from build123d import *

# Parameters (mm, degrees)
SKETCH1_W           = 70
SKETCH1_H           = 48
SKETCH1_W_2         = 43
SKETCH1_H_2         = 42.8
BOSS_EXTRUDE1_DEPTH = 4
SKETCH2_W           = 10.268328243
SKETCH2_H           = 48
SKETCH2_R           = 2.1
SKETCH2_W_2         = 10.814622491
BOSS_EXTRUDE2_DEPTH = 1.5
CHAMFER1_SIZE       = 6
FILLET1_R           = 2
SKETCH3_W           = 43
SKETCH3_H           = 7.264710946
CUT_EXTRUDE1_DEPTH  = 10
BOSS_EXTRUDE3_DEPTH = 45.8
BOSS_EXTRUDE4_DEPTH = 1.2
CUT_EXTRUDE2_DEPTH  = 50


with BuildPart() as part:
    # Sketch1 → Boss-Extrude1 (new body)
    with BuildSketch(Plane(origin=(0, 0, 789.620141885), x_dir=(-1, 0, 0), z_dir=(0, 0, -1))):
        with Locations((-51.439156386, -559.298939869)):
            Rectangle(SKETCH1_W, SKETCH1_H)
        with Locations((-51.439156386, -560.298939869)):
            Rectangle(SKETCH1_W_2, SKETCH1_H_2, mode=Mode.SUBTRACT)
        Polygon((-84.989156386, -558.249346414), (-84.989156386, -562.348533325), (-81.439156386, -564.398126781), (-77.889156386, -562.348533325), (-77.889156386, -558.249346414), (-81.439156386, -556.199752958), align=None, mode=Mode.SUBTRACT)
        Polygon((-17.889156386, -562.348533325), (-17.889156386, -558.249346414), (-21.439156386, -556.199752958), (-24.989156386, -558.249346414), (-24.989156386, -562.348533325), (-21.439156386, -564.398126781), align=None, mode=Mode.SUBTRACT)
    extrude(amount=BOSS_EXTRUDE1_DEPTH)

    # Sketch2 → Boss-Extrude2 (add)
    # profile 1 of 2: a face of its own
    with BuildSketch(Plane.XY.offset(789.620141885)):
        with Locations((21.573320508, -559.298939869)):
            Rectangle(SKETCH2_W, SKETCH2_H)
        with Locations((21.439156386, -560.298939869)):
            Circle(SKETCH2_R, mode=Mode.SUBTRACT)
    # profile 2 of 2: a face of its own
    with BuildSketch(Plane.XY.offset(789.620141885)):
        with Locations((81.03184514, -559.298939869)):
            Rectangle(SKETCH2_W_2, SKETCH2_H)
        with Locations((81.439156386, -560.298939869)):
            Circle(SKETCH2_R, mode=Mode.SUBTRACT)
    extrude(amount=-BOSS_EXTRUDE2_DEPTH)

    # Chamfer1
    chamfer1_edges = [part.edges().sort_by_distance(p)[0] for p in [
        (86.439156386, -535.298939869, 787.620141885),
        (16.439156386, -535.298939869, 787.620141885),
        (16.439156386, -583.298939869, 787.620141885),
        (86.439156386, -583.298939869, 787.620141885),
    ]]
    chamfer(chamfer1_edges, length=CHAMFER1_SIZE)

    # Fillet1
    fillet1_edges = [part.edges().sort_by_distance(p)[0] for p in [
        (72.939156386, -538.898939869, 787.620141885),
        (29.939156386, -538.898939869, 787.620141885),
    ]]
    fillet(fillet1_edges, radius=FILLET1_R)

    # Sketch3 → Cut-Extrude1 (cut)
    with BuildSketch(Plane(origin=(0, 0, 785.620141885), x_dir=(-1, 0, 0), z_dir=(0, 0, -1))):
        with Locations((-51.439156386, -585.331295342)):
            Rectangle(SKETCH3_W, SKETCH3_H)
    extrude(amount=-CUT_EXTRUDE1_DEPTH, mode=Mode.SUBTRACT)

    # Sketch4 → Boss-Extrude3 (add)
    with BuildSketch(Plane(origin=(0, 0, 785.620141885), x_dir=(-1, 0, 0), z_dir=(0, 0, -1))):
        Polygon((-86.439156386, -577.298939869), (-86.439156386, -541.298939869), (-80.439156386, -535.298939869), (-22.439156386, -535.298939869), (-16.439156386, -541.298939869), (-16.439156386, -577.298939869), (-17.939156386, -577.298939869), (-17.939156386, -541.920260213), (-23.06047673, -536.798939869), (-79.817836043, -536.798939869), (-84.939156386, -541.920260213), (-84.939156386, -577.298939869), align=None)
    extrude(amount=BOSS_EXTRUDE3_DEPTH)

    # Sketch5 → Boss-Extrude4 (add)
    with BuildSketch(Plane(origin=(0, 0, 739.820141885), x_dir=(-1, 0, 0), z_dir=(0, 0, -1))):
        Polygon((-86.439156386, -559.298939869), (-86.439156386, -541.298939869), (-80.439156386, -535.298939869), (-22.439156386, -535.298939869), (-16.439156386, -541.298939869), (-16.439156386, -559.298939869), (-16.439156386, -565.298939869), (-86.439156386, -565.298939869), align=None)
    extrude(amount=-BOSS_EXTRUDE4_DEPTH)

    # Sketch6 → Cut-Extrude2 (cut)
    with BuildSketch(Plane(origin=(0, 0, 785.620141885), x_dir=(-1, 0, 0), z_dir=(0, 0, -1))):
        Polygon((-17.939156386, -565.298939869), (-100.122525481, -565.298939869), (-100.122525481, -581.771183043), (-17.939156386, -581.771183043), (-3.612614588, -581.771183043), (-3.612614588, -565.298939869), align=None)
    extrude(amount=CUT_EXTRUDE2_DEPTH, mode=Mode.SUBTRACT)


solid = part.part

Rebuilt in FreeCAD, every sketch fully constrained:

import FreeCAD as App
import Part
import Sketcher
Q = App.Units.Quantity


def edges_at(feature, points):
    """Names of the edges that pass closest to the given points."""
    edges = feature.Shape.Edges
    near = lambda p: min(range(len(edges)), key=lambda i: edges[i].distToShape(Part.Vertex(*p))[0])
    return sorted({f"Edge{near(p) + 1}" for p in points})


def add_polygon(sketch, points):
    """Adds a closed chain of lines whose ends are joined by coincident constraints."""
    first, n = sketch.GeometryCount, len(points)
    for a, b in zip(points, points[1:] + points[:1]):
        sketch.addGeometry(Part.LineSegment(App.Vector(*a, 0), App.Vector(*b, 0)), False)
    for i in range(n):
        sketch.addConstraint(Sketcher.Constraint("Coincident", first + i, 2, first + (i + 1) % n, 1))

doc = App.newDocument("Part")
body = doc.addObject("PartDesign::Body", "Body")

sketch1 = body.newObject("Sketcher::SketchObject", "Sketch")
sketch1.AttachmentSupport = (doc.getObject("XY_Plane"), [""])
sketch1.MapMode = "FlatFace"
sketch1.AttachmentOffset = App.Placement(App.Vector(0, 0, 789.620142), App.Rotation())
add_polygon(sketch1, [(86.4, -535.3), (86.4, -583.3), (16.4, -583.3), (16.4, -535.3)])
add_polygon(sketch1, [(85, -562.3), (85, -558.2), (81.4, -556.2), (77.9, -558.2), (77.9, -562.3), (81.4, -564.4)])
add_polygon(sketch1, [(17.9, -558.2), (17.9, -562.3), (21.4, -564.4), (25, -562.3), (25, -558.2), (21.4, -556.2)])
add_polygon(sketch1, [(29.9, -581.7), (72.9, -581.7), (72.9, -538.9), (29.9, -538.9)])
sketch1.addConstraint([
    Sketcher.Constraint("Vertical", 0),
    Sketcher.Constraint("Horizontal", 1),
    Sketcher.Constraint("Vertical", 2),
    Sketcher.Constraint("Horizontal", 3),
    Sketcher.Constraint("Vertical", 4),
    Sketcher.Constraint("Vertical", 7),
    Sketcher.Constraint("Vertical", 10),
    Sketcher.Constraint("Vertical", 13),
    Sketcher.Constraint("Horizontal", 16),
    Sketcher.Constraint("Vertical", 17),
    Sketcher.Constraint("Horizontal", 18),
    Sketcher.Constraint("Vertical", 19),
    Sketcher.Constraint("Parallel", 5, 8),
    Sketcher.Constraint("Parallel", 6, 9),
    Sketcher.Constraint("Parallel", 8, 11),
    Sketcher.Constraint("Parallel", 9, 12),
    Sketcher.Constraint("Parallel", 11, 14),
    Sketcher.Constraint("Parallel", 12, 15),
    Sketcher.Constraint("Horizontal", 4, 2, 6, 2),
    Sketcher.Constraint("Horizontal", 7, 2, 9, 2),
    Sketcher.Constraint("Horizontal", 9, 2, 10, 2),
    Sketcher.Constraint("Horizontal", 8, 2, 11, 2),
    Sketcher.Constraint("Horizontal", 10, 2, 12, 2),
    Sketcher.Constraint("Horizontal", 6, 2, 13, 2),
    Sketcher.Constraint("Horizontal", 5, 2, 14, 2),
    Sketcher.Constraint("Vertical", 5, 2, 8, 2),
    Sketcher.Constraint("DistanceX", 1, 2, 1, 1, 70.0),
    Sketcher.Constraint("DistanceX", 16, 1, 16, 2, 43.0),
    Sketcher.Constraint("DistanceY", 0, 2, 0, 1, 48.0),
    Sketcher.Constraint("Angle", 5, Q("150 deg")),
    Sketcher.Constraint("DistanceY", 17, 1, 17, 2, 42.8),
    Sketcher.Constraint("DistanceX", 5, 2, 3, 2, 5.0),
    Sketcher.Constraint("DistanceX", 10, 2, 7, 2, 60.0),
    Sketcher.Constraint("DistanceX", 6, 2, 4, 2, 7.1),
    Sketcher.Constraint("DistanceX", 16, 2, 0, 2, 13.5),
    Sketcher.Constraint("DistanceY", 0, 2, 16, 2, 1.6),
    Sketcher.Constraint("DistanceY", 4, 1, 4, 2, 4.099187),
    Sketcher.Constraint("DistanceY", 0, 2, -1, 1, 583.29894),
    Sketcher.Constraint("DistanceX", -1, 1, 0, 2, 86.439156),
    Sketcher.Constraint("DistanceY", 4, 2, -1, 1, 558.249346),
])
pad1 = body.newObject("PartDesign::Pad", "Pad")
pad1.Profile = sketch1
pad1.Length = 4
pad1.Reversed = True

sketch2 = body.newObject("Sketcher::SketchObject", "Sketch001")
sketch2.AttachmentSupport = (doc.getObject("XY_Plane"), [""])
sketch2.MapMode = "FlatFace"
sketch2.AttachmentOffset = App.Placement(App.Vector(0, 0, 789.620142), App.Rotation())
add_polygon(sketch2, [(16.4, -535.3), (16.4, -583.3), (26.7, -583.3), (26.7, -535.3)])
sketch2.addGeometry(Part.Circle(App.Vector(21.4, -560.3, 0), App.Vector(0, 0, 1), 2.1), False)
add_polygon(sketch2, [(75.6, -535.3), (75.6, -583.3), (86.4, -583.3), (86.4, -535.3)])
sketch2.addGeometry(Part.Circle(App.Vector(81.4, -560.3, 0), App.Vector(0, 0, 1), 2.1), False)
sketch2.addConstraint([
    Sketcher.Constraint("Vertical", 0),
    Sketcher.Constraint("Horizontal", 1),
    Sketcher.Constraint("Vertical", 2),
    Sketcher.Constraint("Horizontal", 3),
    Sketcher.Constraint("Vertical", 5),
    Sketcher.Constraint("Horizontal", 6),
    Sketcher.Constraint("Vertical", 7),
    Sketcher.Constraint("Horizontal", 8),
    Sketcher.Constraint("Equal", 4, 9),
    Sketcher.Constraint("Horizontal", 4, 3, 9, 3),
    Sketcher.Constraint("Horizontal", 1, 2, 5, 2),
    Sketcher.Constraint("Horizontal", 3, 2, 7, 2),
    Sketcher.Constraint("Diameter", 4, 4.2),
    Sketcher.Constraint("DistanceY", 0, 2, 0, 1, 48.0),
    Sketcher.Constraint("DistanceX", 4, 3, 9, 3, 60.0),
    Sketcher.Constraint("DistanceX", 0, 2, 4, 3, 5.0),
    Sketcher.Constraint("DistanceY", 0, 2, 4, 3, 23.0),
    Sketcher.Constraint("DistanceX", 9, 3, 6, 2, 5.0),
    Sketcher.Constraint("DistanceX", 1, 1, 1, 2, 10.268328),
    Sketcher.Constraint("DistanceX", 6, 1, 6, 2, 10.814622),
    Sketcher.Constraint("DistanceY", 4, 3, -1, 1, 560.29894),
    Sketcher.Constraint("DistanceX", -1, 1, 4, 3, 21.439156),
])
pad2 = body.newObject("PartDesign::Pad", "Pad001")
pad2.Profile = sketch2
pad2.Length = 1.5
pad2.Reversed = True
doc.recompute()

chamfer = body.newObject("PartDesign::Chamfer", "Chamfer")
chamfer.Base = (pad2, edges_at(pad2, [
    (86.439, -535.299, 787.62),
    (16.439, -535.299, 787.62),
    (16.439, -583.299, 787.62),
    (86.439, -583.299, 787.62),
]))
chamfer.Size = 6
doc.recompute()

fillet = body.newObject("PartDesign::Fillet", "Fillet")
fillet.Base = (chamfer, edges_at(chamfer, [(72.939, -538.899, 787.62), (29.939, -538.899, 787.62)]))
fillet.Radius = 2

sketch3 = body.newObject("Sketcher::SketchObject", "Sketch002")
sketch3.AttachmentSupport = (doc.getObject("XY_Plane"), [""])
sketch3.MapMode = "FlatFace"
sketch3.AttachmentOffset = App.Placement(App.Vector(0, 0, 785.620142), App.Rotation())
add_polygon(sketch3, [(73, -582), (73, -589), (30, -589), (30, -582)])
sketch3.addConstraint([
    Sketcher.Constraint("Vertical", 0),
    Sketcher.Constraint("Horizontal", 1),
    Sketcher.Constraint("Vertical", 2),
    Sketcher.Constraint("Horizontal", 3),
    Sketcher.Constraint("DistanceX", 1, 2, 1, 1, 43.0),
    Sketcher.Constraint("DistanceY", 0, 2, 0, 1, 7.264711),
    Sketcher.Constraint("DistanceY", 0, 2, -1, 1, 588.963651),
    Sketcher.Constraint("DistanceX", -1, 1, 0, 2, 72.939156),
])
pocket1 = body.newObject("PartDesign::Pocket", "Pocket")
pocket1.Profile = sketch3
pocket1.Length = 10
pocket1.Reversed = True

sketch4 = body.newObject("Sketcher::SketchObject", "Sketch003")
sketch4.AttachmentSupport = (doc.getObject("XY_Plane"), [""])
sketch4.MapMode = "FlatFace"
sketch4.AttachmentOffset = App.Placement(App.Vector(0, 0, 785.620142), App.Rotation())
add_polygon(sketch4, [(86.4, -541.3), (86.4, -577.3), (84.9, -577.3), (84.9, -541.9), (79.8, -536.8), (23.1, -536.8), (17.9, -541.9), (17.9, -577.3), (16.4, -577.3), (16.4, -541.3), (22.4, -535.3), (80.4, -535.3)])
sketch4.addConstraint([
    Sketcher.Constraint("Vertical", 0),
    Sketcher.Constraint("Horizontal", 1),
    Sketcher.Constraint("Vertical", 2),
    Sketcher.Constraint("Horizontal", 4),
    Sketcher.Constraint("Vertical", 6),
    Sketcher.Constraint("Horizontal", 7),
    Sketcher.Constraint("Vertical", 8),
    Sketcher.Constraint("Horizontal", 10),
    Sketcher.Constraint("Perpendicular", 3, 5),
    Sketcher.Constraint("Parallel", 5, 9),
    Sketcher.Constraint("Perpendicular", 9, 11),
    Sketcher.Constraint("Horizontal", 2, 2, 5, 2),
    Sketcher.Constraint("Horizontal", 1, 2, 6, 2),
    Sketcher.Constraint("Horizontal", 8, 2, 11, 2),
    Sketcher.Constraint("Equal", 1, 7),
    Sketcher.Constraint("Equal", 3, 5),
    Sketcher.Constraint("DistanceX", 10, 1, 10, 2, 58.0),
    Sketcher.Constraint("DistanceY", 0, 2, 0, 1, 36.0),
    Sketcher.Constraint("DistanceX", 1, 2, 1, 1, 1.5),
    Sketcher.Constraint("DistanceX", 5, 2, 2, 2, 67.0),
    Sketcher.Constraint("DistanceY", 1, 2, 3, 2, 40.5),
    Sketcher.Constraint("DistanceX", 4, 2, 4, 1, 56.757359),
    Sketcher.Constraint("DistanceY", 0, 2, -1, 1, 577.29894),
    Sketcher.Constraint("DistanceX", -1, 1, 0, 2, 86.439156),
])
pad3 = body.newObject("PartDesign::Pad", "Pad002")
pad3.Profile = sketch4
pad3.Length = 45.8
pad3.Reversed = True

sketch5 = body.newObject("Sketcher::SketchObject", "Sketch004")
sketch5.AttachmentSupport = (doc.getObject("XY_Plane"), [""])
sketch5.MapMode = "FlatFace"
sketch5.AttachmentOffset = App.Placement(App.Vector(0, 0, 739.820142), App.Rotation())
add_polygon(sketch5, [(86, -541), (86, -565), (16, -565), (16, -541), (22, -535), (80, -535)])
sketch5.addConstraint([
    Sketcher.Constraint("Vertical", 0),
    Sketcher.Constraint("Horizontal", 1),
    Sketcher.Constraint("Vertical", 2),
    Sketcher.Constraint("Horizontal", 4),
    Sketcher.Constraint("Perpendicular", 3, 5),
    Sketcher.Constraint("Horizontal", 2, 2, 5, 2),
    Sketcher.Constraint("Equal", 3, 5),
    Sketcher.Constraint("DistanceX", 1, 2, 1, 1, 70.0),
    Sketcher.Constraint("DistanceX", 4, 1, 4, 2, 58.0),
    Sketcher.Constraint("DistanceY", 0, 2, 0, 1, 24.0),
    Sketcher.Constraint("DistanceY", 0, 2, -1, 1, 565.29894),
    Sketcher.Constraint("DistanceX", -1, 1, 0, 2, 86.439156),
])
pad4 = body.newObject("PartDesign::Pad", "Pad003")
pad4.Profile = sketch5
pad4.Length = 1.2

sketch6 = body.newObject("Sketcher::SketchObject", "Sketch005")
sketch6.AttachmentSupport = (doc.getObject("XY_Plane"), [""])
sketch6.MapMode = "FlatFace"
sketch6.AttachmentOffset = App.Placement(App.Vector(0, 0, 785.620142), App.Rotation())
add_polygon(sketch6, [(100, -565), (100, -582), (4, -582), (4, -565)])
sketch6.addConstraint([
    Sketcher.Constraint("Vertical", 0),
    Sketcher.Constraint("Horizontal", 1),
    Sketcher.Constraint("Vertical", 2),
    Sketcher.Constraint("Horizontal", 3),
    Sketcher.Constraint("DistanceX", 1, 2, 1, 1, 96.509911),
    Sketcher.Constraint("DistanceY", 0, 2, 0, 1, 16.472243),
    Sketcher.Constraint("DistanceY", 2, 2, -1, 1, 565.29894),
    Sketcher.Constraint("DistanceX", -1, 1, 0, 2, 100.122525),
])
pocket2 = body.newObject("PartDesign::Pocket", "Pocket001")
pocket2.Profile = sketch6
pocket2.Length = 50

doc.recompute()
